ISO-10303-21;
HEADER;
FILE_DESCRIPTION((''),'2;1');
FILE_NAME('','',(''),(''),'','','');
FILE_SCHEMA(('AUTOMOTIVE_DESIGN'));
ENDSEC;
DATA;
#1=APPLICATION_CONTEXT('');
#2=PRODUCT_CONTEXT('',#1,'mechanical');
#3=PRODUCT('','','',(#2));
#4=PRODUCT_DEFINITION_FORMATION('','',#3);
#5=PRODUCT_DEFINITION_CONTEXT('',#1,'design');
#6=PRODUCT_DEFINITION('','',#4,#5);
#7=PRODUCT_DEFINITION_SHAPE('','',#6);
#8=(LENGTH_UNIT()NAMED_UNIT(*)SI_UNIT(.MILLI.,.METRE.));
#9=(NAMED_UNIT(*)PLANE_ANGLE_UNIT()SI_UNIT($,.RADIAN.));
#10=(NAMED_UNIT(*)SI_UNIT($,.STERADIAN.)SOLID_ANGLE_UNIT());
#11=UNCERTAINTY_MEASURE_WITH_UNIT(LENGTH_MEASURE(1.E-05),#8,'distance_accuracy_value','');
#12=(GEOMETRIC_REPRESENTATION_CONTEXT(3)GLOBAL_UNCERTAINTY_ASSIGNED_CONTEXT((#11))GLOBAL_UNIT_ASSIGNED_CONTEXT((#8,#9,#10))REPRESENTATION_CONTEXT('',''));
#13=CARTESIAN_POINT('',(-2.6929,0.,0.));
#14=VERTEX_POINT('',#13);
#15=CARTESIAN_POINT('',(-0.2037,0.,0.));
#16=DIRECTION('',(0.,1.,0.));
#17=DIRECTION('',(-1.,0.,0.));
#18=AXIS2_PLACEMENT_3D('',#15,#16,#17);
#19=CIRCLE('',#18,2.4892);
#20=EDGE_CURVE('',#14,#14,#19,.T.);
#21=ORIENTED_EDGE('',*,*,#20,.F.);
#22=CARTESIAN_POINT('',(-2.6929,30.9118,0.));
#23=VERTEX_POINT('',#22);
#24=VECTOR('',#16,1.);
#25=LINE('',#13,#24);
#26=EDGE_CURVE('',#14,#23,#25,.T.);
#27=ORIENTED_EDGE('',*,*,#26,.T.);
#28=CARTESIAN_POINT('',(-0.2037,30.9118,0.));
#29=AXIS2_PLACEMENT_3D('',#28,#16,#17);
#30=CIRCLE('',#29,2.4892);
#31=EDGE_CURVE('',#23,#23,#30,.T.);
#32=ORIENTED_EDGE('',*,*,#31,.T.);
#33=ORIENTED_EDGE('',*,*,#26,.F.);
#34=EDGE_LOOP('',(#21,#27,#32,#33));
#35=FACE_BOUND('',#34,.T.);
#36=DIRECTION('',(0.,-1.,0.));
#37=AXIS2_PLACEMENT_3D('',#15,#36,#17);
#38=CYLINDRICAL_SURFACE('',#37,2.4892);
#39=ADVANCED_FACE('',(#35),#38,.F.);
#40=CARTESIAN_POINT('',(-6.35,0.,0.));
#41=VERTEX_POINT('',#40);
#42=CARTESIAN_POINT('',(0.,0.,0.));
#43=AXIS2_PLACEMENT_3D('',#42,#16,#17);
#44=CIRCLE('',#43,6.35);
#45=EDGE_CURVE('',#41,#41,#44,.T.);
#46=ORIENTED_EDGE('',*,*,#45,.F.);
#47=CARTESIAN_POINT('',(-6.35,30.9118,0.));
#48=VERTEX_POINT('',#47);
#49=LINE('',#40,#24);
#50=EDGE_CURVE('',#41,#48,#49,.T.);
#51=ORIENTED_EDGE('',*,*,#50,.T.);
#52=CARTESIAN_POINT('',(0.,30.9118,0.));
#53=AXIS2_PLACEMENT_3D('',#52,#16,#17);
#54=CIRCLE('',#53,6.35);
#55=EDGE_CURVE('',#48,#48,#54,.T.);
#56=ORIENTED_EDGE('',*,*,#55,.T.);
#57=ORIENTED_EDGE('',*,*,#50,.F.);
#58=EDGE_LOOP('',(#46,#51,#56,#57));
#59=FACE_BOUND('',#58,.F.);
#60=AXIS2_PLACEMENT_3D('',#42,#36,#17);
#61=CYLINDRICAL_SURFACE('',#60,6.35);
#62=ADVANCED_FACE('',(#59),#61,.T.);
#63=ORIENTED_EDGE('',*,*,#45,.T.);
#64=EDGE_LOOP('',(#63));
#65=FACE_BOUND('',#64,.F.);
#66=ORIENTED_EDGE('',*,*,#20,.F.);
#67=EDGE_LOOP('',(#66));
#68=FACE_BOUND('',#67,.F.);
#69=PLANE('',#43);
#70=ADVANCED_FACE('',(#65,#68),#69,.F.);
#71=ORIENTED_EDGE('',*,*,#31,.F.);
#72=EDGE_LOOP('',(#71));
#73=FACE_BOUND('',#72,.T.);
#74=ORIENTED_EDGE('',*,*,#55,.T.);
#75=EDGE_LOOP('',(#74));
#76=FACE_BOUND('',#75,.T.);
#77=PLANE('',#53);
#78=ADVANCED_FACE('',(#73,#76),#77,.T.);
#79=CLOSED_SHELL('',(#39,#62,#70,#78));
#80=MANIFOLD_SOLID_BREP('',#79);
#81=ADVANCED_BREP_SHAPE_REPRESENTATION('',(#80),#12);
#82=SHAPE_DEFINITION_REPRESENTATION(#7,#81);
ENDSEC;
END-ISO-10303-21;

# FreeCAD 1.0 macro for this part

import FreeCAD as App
import Part
import Sketcher

V = App.Vector
Q = App.Units.Quantity

doc = App.newDocument("Part")
body = doc.addObject("PartDesign::Body", "Body")

# Sketch on XZ plane
sketch1 = doc.addObject("Sketcher::SketchObject", "Sketch")
body.addObject(sketch1)
sketch1.AttachmentSupport = (doc.XZ_Plane, [""])
sketch1.MapMode = "FlatFace"
sketch1.addGeometry(Part.Circle(V(0, 0, 0), V(0, 0, 1), 6.3), False)
sketch1.addGeometry(Part.Circle(V(-0.2, 0, 0), V(0, 0, 1), 2.5), False)
sketch1.addConstraint(Sketcher.Constraint("Coincident", 0, 3, -1, 1))
sketch1.addConstraint(Sketcher.Constraint("PointOnObject", 1, 3, -1))
sketch1.addConstraint(Sketcher.Constraint("Diameter", 0, Q("0.5 in")))
sketch1.addConstraint(Sketcher.Constraint("Diameter", 1, Q("0.196 in")))
sketch1.addConstraint(Sketcher.Constraint("DistanceX", 1, 3, -1, 1, 0.2037))
pad1 = doc.addObject("PartDesign::Pad", "Pad")
body.addObject(pad1)
pad1.Profile = sketch1
pad1.Length = Q("1.217 in")
pad1.Reversed = True

doc.recompute()
